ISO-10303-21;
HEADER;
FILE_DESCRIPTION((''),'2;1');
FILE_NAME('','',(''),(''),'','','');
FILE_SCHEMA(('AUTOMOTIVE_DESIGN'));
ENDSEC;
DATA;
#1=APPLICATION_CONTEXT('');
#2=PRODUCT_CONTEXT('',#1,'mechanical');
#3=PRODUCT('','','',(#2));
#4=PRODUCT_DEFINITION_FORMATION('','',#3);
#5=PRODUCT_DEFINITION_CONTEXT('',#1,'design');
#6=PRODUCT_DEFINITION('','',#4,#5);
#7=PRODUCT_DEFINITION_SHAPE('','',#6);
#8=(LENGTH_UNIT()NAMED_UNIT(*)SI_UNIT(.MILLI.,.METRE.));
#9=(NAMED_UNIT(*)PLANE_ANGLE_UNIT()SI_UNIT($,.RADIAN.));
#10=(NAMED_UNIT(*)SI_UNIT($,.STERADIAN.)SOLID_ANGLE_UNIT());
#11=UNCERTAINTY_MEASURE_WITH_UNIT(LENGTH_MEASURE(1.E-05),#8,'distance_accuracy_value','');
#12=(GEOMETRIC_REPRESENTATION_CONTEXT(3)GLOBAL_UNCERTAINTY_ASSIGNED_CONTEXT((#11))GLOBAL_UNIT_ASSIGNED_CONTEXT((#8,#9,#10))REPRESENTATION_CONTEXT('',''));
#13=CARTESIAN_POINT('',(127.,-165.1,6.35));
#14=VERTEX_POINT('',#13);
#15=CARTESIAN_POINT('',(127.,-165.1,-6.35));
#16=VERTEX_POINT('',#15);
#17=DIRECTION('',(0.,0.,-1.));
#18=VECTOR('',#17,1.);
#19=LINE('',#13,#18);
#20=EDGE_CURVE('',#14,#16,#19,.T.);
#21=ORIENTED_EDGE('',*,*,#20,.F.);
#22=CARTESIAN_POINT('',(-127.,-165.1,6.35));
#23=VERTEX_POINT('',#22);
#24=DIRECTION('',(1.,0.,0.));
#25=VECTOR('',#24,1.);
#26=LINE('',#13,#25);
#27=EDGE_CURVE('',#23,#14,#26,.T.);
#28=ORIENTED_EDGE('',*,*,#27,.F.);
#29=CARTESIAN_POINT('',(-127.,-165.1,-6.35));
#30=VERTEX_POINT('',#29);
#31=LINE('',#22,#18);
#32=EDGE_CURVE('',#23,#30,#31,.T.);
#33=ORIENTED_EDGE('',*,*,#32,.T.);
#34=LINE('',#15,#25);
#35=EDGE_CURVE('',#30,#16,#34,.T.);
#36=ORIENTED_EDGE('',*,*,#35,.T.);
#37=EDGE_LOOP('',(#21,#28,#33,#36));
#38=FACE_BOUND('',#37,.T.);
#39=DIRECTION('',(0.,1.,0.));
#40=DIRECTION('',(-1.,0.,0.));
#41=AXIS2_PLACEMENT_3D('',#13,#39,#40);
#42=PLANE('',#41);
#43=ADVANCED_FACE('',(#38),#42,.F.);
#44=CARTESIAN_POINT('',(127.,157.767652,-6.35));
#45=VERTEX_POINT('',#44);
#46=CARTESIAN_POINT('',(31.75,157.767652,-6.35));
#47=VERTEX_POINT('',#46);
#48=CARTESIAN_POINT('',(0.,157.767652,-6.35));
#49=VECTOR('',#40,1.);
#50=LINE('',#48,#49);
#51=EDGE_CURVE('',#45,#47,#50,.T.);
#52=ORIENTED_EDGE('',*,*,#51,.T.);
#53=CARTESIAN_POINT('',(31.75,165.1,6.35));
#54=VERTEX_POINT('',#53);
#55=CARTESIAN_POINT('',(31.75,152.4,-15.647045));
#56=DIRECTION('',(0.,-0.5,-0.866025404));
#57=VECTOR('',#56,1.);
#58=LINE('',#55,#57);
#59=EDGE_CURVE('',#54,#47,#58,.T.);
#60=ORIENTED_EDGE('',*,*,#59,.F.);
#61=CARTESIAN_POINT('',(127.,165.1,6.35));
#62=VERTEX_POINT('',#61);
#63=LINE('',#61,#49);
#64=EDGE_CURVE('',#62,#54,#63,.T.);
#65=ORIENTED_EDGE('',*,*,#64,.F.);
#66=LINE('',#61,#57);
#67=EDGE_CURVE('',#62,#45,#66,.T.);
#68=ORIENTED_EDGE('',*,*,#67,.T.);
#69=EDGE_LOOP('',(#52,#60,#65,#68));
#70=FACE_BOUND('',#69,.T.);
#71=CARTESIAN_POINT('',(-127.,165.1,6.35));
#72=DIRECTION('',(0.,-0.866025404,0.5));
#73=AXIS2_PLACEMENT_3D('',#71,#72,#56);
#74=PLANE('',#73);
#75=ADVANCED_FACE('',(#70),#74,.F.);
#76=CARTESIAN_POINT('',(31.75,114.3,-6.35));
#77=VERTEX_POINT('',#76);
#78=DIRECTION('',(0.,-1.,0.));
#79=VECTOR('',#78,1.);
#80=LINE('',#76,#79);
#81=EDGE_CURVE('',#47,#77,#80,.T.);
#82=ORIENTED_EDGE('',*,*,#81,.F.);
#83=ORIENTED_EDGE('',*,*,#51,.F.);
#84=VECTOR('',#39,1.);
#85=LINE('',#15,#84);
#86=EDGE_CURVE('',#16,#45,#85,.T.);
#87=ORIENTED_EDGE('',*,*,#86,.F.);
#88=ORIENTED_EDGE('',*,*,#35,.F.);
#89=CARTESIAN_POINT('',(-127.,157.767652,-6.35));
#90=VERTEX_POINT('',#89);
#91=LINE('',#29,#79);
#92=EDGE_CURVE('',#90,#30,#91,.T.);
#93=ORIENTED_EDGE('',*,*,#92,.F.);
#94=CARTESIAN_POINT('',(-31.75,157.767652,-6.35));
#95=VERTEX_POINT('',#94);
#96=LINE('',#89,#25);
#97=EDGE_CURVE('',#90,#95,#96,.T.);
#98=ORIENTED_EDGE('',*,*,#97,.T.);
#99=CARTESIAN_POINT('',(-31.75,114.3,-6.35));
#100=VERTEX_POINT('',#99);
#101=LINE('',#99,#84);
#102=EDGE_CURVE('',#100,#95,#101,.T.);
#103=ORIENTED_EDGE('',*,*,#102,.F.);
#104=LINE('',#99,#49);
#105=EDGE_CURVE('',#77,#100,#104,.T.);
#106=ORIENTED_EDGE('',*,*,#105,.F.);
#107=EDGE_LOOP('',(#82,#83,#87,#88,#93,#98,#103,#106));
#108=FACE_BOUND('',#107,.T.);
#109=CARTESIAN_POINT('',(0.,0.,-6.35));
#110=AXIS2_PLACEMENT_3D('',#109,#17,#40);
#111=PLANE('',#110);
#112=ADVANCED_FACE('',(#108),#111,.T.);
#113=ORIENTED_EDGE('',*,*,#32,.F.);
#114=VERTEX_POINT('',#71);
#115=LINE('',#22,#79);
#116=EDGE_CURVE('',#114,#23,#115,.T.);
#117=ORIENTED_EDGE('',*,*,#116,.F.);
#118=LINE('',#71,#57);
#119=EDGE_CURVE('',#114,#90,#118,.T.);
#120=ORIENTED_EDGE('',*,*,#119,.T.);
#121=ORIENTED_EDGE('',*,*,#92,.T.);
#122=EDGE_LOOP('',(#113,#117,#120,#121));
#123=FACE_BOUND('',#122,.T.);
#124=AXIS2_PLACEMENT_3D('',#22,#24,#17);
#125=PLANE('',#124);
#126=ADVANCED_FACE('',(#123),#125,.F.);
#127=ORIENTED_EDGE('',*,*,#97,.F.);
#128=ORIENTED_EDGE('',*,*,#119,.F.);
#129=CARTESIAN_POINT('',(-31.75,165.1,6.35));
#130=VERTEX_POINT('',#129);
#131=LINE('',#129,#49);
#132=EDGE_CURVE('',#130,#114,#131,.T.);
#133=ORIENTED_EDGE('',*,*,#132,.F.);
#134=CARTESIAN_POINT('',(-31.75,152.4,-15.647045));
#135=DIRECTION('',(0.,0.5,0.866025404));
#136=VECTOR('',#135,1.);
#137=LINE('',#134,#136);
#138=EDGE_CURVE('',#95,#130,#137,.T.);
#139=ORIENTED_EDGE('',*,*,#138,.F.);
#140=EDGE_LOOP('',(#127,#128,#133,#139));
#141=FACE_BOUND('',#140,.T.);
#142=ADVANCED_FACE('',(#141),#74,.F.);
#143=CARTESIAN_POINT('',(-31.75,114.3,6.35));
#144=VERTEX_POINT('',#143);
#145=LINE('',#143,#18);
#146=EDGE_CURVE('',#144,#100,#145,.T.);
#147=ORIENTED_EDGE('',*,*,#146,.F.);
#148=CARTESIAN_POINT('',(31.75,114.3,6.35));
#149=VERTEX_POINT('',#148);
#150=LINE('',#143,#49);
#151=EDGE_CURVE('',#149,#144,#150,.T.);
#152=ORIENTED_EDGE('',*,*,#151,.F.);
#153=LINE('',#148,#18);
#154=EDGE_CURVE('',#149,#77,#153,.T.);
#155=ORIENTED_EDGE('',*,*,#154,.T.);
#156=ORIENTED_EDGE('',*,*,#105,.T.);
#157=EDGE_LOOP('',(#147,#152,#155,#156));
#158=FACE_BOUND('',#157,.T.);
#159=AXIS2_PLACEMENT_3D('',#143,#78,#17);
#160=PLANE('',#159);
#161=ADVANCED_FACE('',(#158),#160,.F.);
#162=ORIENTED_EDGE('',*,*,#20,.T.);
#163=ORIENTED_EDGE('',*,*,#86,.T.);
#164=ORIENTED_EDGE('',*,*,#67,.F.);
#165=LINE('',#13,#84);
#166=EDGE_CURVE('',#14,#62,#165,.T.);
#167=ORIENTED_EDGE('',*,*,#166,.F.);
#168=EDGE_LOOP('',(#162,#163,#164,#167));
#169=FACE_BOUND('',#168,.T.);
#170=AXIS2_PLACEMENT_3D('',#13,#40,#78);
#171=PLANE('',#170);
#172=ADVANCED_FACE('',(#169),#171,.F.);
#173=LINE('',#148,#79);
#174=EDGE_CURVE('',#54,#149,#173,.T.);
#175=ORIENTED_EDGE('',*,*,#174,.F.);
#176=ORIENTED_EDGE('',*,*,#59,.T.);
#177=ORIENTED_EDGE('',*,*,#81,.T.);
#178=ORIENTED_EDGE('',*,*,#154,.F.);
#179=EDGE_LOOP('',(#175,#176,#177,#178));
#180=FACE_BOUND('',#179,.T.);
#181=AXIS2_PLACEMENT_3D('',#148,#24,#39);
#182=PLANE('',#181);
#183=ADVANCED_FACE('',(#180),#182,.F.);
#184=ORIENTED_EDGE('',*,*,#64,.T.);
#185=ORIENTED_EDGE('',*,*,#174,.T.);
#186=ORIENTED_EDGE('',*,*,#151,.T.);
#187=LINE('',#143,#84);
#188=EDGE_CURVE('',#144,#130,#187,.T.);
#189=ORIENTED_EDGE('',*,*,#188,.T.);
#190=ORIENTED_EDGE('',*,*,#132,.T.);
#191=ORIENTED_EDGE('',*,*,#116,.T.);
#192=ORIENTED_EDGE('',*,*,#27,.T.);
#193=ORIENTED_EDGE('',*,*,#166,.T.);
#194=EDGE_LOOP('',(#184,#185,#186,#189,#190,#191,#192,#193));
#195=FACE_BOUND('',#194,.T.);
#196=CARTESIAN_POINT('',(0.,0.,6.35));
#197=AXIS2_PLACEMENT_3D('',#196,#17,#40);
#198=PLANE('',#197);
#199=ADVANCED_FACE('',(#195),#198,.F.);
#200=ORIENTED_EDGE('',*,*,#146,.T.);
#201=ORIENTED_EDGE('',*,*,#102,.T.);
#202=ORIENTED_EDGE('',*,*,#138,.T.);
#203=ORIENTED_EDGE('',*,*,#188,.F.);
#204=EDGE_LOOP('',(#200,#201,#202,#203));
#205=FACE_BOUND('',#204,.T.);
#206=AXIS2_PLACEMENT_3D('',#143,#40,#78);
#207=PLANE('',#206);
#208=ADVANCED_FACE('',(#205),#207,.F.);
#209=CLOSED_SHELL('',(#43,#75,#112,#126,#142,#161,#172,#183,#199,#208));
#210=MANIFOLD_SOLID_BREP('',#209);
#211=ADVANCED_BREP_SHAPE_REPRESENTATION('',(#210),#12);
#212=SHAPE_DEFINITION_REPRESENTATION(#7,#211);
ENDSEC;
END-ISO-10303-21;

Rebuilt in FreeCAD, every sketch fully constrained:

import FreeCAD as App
import Part
import Sketcher
from FreeCAD import Vector
Q = App.Units.Quantity


def add_polygon(sketch, points):
    """Adds a closed chain of lines whose ends are joined by coincident constraints."""
    first, n = sketch.GeometryCount, len(points)
    for a, b in zip(points, points[1:] + points[:1]):
        sketch.addGeometry(Part.LineSegment(App.Vector(*a, 0), App.Vector(*b, 0)), False)
    for i in range(n):
        sketch.addConstraint(Sketcher.Constraint("Coincident", first + i, 2, first + (i + 1) % n, 1))

doc = App.newDocument("Part")
body = doc.addObject("PartDesign::Body", "Body")

sketch1 = body.newObject("Sketcher::SketchObject", "Sketch")
sketch1.AttachmentSupport = (doc.getObject("XY_Plane"), [""])
sketch1.MapMode = "FlatFace"
add_polygon(sketch1, [(-127, -165.1), (127, -165.1), (127, 165.1), (31.75, 165.1), (31.75, 114.3), (-31.75, 114.3), (-31.75, 165.1), (-127, 165.1)])
sketch1.addConstraint([
    Sketcher.Constraint("Horizontal", 0),
    Sketcher.Constraint("Vertical", 1),
    Sketcher.Constraint("Horizontal", 2),
    Sketcher.Constraint("Vertical", 3),
    Sketcher.Constraint("Horizontal", 4),
    Sketcher.Constraint("Vertical", 5),
    Sketcher.Constraint("Horizontal", 6),
    Sketcher.Constraint("Vertical", 7),
    Sketcher.Constraint("Symmetric", 0, 2, 6, 2, -1, 1),
    Sketcher.Constraint("Symmetric", 2, 2, 5, 2, -2),
    Sketcher.Constraint("DistanceX", 0, 1, 0, 2, Q("10 in")),
    Sketcher.Constraint("DistanceY", 1, 1, 1, 2, Q("13 in")),
    Sketcher.Constraint("DistanceY", 3, 2, 3, 1, Q("2 in")),
    Sketcher.Constraint("DistanceX", 4, 2, 4, 1, Q("2.5 in")),
])
pad1 = body.newObject("PartDesign::Pad", "Pad")
pad1.Profile = sketch1
pad1.Length = Q("0.5 in")
pad1.Midplane = True

sketch2 = body.newObject("Sketcher::SketchObject", "Sketch001")
sketch2.AttachmentSupport = (doc.getObject("YZ_Plane"), [""])
sketch2.MapMode = "FlatFace"
add_polygon(sketch2, [(165.1, -6.35), (165.1, 6.35), (157.767652, -6.35)])
sketch2.addConstraint([
    Sketcher.Constraint("Vertical", 0),
    Sketcher.Constraint("Horizontal", 2),
    Sketcher.Constraint("DistanceY", 0, 1, 0, 2, Q("0.5 in")),
    Sketcher.Constraint("Angle", 1, Q("-120 deg")),
    Sketcher.Constraint("DistanceX", -1, 1, 0, 2, Q("6.5 in")),
    Sketcher.Constraint("DistanceY", -1, 1, 0, 2, Q("0.25 in")),
])
pocket1 = body.newObject("PartDesign::Pocket", "Pocket")
pocket1.Profile = sketch2
pocket1.Length = Q("10 in")
pocket1.Midplane = True

doc.recompute()
